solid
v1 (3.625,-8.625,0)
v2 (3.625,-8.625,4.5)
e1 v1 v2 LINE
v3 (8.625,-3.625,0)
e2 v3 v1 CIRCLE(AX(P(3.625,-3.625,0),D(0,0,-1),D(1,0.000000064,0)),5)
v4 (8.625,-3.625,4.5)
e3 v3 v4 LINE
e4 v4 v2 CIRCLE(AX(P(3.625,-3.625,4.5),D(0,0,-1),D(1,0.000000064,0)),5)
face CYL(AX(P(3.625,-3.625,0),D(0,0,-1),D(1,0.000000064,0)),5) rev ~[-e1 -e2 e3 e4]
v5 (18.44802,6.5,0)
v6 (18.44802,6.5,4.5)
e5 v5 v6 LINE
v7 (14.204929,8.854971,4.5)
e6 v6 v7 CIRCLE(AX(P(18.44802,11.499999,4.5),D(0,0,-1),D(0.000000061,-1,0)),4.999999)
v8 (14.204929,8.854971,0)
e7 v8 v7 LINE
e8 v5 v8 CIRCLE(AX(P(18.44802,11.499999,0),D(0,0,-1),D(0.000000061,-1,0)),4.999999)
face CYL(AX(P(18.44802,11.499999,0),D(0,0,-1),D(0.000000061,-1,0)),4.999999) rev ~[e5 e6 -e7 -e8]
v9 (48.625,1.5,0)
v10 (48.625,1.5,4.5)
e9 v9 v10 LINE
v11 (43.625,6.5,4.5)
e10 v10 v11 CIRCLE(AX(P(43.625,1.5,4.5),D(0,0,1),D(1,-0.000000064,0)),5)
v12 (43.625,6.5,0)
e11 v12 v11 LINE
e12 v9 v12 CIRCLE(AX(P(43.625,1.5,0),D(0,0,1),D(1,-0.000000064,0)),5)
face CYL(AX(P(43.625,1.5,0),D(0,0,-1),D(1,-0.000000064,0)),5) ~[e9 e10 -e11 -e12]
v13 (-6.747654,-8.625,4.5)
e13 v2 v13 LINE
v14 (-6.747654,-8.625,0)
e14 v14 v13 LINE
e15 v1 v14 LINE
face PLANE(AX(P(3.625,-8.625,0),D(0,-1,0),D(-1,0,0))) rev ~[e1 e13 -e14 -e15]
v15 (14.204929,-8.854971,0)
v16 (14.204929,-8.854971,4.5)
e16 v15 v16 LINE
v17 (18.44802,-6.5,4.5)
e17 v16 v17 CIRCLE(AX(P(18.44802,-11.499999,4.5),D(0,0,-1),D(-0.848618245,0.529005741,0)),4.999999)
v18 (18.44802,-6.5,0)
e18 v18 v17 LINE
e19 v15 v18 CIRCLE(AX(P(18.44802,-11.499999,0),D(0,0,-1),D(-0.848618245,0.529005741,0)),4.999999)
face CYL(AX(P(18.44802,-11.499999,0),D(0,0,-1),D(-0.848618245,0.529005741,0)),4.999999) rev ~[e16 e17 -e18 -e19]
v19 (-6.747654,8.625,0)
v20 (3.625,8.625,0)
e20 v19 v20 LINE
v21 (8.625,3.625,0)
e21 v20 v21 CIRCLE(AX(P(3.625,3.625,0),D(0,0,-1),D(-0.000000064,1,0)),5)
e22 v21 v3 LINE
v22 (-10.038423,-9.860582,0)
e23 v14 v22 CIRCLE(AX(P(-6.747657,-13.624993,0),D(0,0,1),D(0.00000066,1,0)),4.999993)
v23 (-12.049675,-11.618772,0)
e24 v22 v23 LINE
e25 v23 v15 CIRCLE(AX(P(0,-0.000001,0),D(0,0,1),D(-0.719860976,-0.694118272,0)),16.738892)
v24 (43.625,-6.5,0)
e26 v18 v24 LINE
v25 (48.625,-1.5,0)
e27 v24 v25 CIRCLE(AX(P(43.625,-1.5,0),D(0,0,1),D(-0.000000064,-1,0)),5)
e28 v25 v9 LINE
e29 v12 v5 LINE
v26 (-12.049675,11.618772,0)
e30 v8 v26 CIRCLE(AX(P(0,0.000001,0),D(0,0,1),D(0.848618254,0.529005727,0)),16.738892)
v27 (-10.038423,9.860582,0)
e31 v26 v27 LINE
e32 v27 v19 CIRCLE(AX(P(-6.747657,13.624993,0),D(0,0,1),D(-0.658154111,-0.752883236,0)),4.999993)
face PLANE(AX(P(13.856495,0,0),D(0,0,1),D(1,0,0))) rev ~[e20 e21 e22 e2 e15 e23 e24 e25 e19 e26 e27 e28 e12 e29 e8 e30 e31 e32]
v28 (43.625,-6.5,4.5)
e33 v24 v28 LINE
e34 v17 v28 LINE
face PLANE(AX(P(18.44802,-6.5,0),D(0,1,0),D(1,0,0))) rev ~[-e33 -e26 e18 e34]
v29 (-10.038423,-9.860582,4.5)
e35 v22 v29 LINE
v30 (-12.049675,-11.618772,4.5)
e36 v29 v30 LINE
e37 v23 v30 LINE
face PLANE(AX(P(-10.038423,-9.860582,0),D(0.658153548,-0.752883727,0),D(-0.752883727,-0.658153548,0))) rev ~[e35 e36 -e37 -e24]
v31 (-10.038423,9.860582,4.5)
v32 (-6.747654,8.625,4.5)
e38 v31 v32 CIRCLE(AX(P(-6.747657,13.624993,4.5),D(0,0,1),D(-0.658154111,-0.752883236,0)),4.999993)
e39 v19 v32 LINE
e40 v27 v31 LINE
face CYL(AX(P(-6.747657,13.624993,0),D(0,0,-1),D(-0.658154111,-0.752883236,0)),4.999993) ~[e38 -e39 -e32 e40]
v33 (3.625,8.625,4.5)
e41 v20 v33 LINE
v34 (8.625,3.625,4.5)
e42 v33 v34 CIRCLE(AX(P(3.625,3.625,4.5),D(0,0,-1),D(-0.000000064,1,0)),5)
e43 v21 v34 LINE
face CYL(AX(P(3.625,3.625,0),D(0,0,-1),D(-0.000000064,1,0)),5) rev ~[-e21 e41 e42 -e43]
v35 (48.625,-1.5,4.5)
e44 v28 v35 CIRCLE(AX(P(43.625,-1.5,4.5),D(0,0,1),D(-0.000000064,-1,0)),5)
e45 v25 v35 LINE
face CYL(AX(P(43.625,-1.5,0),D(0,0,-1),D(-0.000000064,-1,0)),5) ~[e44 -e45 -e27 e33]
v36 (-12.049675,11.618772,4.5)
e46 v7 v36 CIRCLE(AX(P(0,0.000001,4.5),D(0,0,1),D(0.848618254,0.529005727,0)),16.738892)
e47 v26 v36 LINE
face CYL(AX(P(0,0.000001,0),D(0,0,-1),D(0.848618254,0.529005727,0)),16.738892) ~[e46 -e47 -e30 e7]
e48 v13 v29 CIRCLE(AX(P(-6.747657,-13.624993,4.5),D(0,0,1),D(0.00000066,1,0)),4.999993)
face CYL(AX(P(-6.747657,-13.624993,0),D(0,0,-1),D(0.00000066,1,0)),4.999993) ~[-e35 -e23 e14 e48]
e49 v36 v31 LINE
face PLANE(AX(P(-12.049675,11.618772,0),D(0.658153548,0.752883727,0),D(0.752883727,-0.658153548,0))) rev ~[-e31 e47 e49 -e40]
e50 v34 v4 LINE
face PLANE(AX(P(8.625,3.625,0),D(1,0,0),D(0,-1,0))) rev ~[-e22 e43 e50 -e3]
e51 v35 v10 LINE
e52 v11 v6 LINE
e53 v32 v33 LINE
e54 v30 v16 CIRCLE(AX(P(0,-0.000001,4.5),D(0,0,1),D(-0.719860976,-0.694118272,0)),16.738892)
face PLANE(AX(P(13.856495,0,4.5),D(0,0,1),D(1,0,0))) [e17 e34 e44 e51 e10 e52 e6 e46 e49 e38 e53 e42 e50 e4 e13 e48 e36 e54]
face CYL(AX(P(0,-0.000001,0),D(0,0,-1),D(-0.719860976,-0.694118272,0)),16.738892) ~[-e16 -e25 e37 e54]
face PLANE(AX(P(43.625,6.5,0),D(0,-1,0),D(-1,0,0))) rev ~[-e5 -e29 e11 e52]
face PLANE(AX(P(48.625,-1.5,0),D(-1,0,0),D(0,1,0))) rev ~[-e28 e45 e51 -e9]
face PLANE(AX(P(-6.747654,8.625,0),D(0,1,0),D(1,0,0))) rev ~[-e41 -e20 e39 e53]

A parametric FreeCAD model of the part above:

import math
import FreeCAD as App
import Part
import Sketcher
Q = App.Units.Quantity

doc = App.newDocument("Part")
body = doc.addObject("PartDesign::Body", "Body")

# Sketch on XY plane
sketch1 = body.newObject("Sketcher::SketchObject", "Sketch")
sketch1.AttachmentSupport = (doc.getObject("XY_Plane"), [""])
sketch1.MapMode = "FlatFace"
sketch1.addGeometry(Part.LineSegment(App.Vector(-6.7, 8.6, 0), App.Vector(3.6, 8.6, 0)), False)
sketch1.addGeometry(Part.ArcOfCircle(Part.Circle(App.Vector(3.6, 3.6, 0), App.Vector(0, 0, 1), 5), math.radians(0), math.radians(90)), False)
sketch1.addGeometry(Part.LineSegment(App.Vector(8.6, 3.6, 0), App.Vector(8.6, -3.6, 0)), False)
sketch1.addGeometry(Part.ArcOfCircle(Part.Circle(App.Vector(3.6, -3.6, 0), App.Vector(0, 0, 1), 5), math.radians(-90), math.radians(0)), False)
sketch1.addGeometry(Part.LineSegment(App.Vector(3.6, -8.6, 0), App.Vector(-6.7, -8.6, 0)), False)
sketch1.addGeometry(Part.ArcOfCircle(Part.Circle(App.Vector(-6.7, -13.6, 0), App.Vector(0, 0, 1), 5), math.radians(90), math.radians(131)), False)
sketch1.addGeometry(Part.LineSegment(App.Vector(-10, -9.9, 0), App.Vector(-12, -11.6, 0)), False)
sketch1.addGeometry(Part.ArcOfCircle(Part.Circle(App.Vector(0, 0, 0), App.Vector(0, 0, 1), 16.7), math.radians(-136), math.radians(-32)), False)
sketch1.addGeometry(Part.ArcOfCircle(Part.Circle(App.Vector(18.4, -11.5, 0), App.Vector(0, 0, 1), 5), math.radians(90), math.radians(148)), False)
sketch1.addGeometry(Part.LineSegment(App.Vector(18.4, -6.5, 0), App.Vector(43.6, -6.5, 0)), False)
sketch1.addGeometry(Part.ArcOfCircle(Part.Circle(App.Vector(43.6, -1.5, 0), App.Vector(0, 0, 1), 5), math.radians(-90), math.radians(0)), False)
sketch1.addGeometry(Part.LineSegment(App.Vector(48.6, -1.5, 0), App.Vector(48.6, 1.5, 0)), False)
sketch1.addGeometry(Part.ArcOfCircle(Part.Circle(App.Vector(43.6, 1.5, 0), App.Vector(0, 0, 1), 5), math.radians(0), math.radians(90)), False)
sketch1.addGeometry(Part.LineSegment(App.Vector(43.6, 6.5, 0), App.Vector(18.4, 6.5, 0)), False)
sketch1.addGeometry(Part.ArcOfCircle(Part.Circle(App.Vector(18.4, 11.5, 0), App.Vector(0, 0, 1), 5), math.radians(-148), math.radians(-90)), False)
sketch1.addGeometry(Part.ArcOfCircle(Part.Circle(App.Vector(0, 0, 0), App.Vector(0, 0, 1), 16.7), math.radians(32), math.radians(136)), False)
sketch1.addGeometry(Part.LineSegment(App.Vector(-12, 11.6, 0), App.Vector(-10, 9.9, 0)), False)
sketch1.addGeometry(Part.ArcOfCircle(Part.Circle(App.Vector(-6.7, 13.6, 0), App.Vector(0, 0, 1), 5), math.radians(-131), math.radians(-90)), False)
sketch1.addConstraint(Sketcher.Constraint("Tangent", 0, 2, 1, 2))
sketch1.addConstraint(Sketcher.Constraint("Tangent", 1, 1, 2, 1))
sketch1.addConstraint(Sketcher.Constraint("Tangent", 2, 2, 3, 2))
sketch1.addConstraint(Sketcher.Constraint("Tangent", 3, 1, 4, 1))
sketch1.addConstraint(Sketcher.Constraint("Tangent", 4, 2, 5, 1))
sketch1.addConstraint(Sketcher.Constraint("Tangent", 5, 2, 6, 1))
sketch1.addConstraint(Sketcher.Constraint("Coincident", 6, 2, 7, 1))
sketch1.addConstraint(Sketcher.Constraint("Tangent", 7, 2, 8, 2))
sketch1.addConstraint(Sketcher.Constraint("Tangent", 8, 1, 9, 1))
sketch1.addConstraint(Sketcher.Constraint("Tangent", 9, 2, 10, 1))
sketch1.addConstraint(Sketcher.Constraint("Tangent", 10, 2, 11, 1))
sketch1.addConstraint(Sketcher.Constraint("Tangent", 11, 2, 12, 1))
sketch1.addConstraint(Sketcher.Constraint("Tangent", 12, 2, 13, 1))
sketch1.addConstraint(Sketcher.Constraint("Tangent", 13, 2, 14, 2))
sketch1.addConstraint(Sketcher.Constraint("Tangent", 14, 1, 15, 1))
sketch1.addConstraint(Sketcher.Constraint("Coincident", 15, 2, 16, 1))
sketch1.addConstraint(Sketcher.Constraint("Tangent", 16, 2, 17, 1))
sketch1.addConstraint(Sketcher.Constraint("Tangent", 17, 2, 0, 1))
sketch1.addConstraint(Sketcher.Constraint("Horizontal", 0))
sketch1.addConstraint(Sketcher.Constraint("Vertical", 2))
sketch1.addConstraint(Sketcher.Constraint("Horizontal", 4))
sketch1.addConstraint(Sketcher.Constraint("Horizontal", 9))
sketch1.addConstraint(Sketcher.Constraint("Vertical", 11))
sketch1.addConstraint(Sketcher.Constraint("Horizontal", 13))
sketch1.addConstraint(Sketcher.Constraint("Coincident", 7, 3, -1, 1))
sketch1.addConstraint(Sketcher.Constraint("Coincident", 15, 3, -1, 1))
sketch1.addConstraint(Sketcher.Constraint("Equal", 1, 3))
sketch1.addConstraint(Sketcher.Constraint("Equal", 3, 8))
sketch1.addConstraint(Sketcher.Constraint("Equal", 8, 10))
sketch1.addConstraint(Sketcher.Constraint("Equal", 10, 12))
sketch1.addConstraint(Sketcher.Constraint("Equal", 12, 14))
sketch1.addConstraint(Sketcher.Constraint("Equal", 7, 15))
sketch1.addConstraint(Sketcher.Constraint("Equal", 5, 17))
sketch1.addConstraint(Sketcher.Constraint("Symmetric", 5, 3, 17, 3, -1))
sketch1.addConstraint(Sketcher.Constraint("Vertical", 8, 3, 14, 3))
sketch1.addConstraint(Sketcher.Constraint("Vertical", 6, 2, 15, 2))
sketch1.addConstraint(Sketcher.Constraint("Radius", 1, Q("5 mm")))
sketch1.addConstraint(Sketcher.Constraint("DistanceY", 11, 1, 11, 2, Q("3 mm")))
sketch1.addConstraint(Sketcher.Constraint("DistanceX", 3, 3, 10, 3, Q("40 mm")))
sketch1.addConstraint(Sketcher.Constraint("DistanceY", 2, 2, 2, 1, Q("7.25 mm")))
sketch1.addConstraint(Sketcher.Constraint("Radius", 7, Q("16.738892 mm")))
sketch1.addConstraint(Sketcher.Constraint("DistanceX", -1, 1, 1, 3, Q("3.625 mm")))
sketch1.addConstraint(Sketcher.Constraint("Radius", 5, Q("4.999993 mm")))
sketch1.addConstraint(Sketcher.Constraint("DistanceX", 0, 1, 0, 2, Q("10.372654 mm")))
sketch1.addConstraint(Sketcher.Constraint("DistanceY", 5, 2, -1, 1, Q("9.860582 mm")))
pad1 = body.newObject("PartDesign::Pad", "Pad")
pad1.Profile = sketch1
pad1.Length = 4.5

doc.recompute()
